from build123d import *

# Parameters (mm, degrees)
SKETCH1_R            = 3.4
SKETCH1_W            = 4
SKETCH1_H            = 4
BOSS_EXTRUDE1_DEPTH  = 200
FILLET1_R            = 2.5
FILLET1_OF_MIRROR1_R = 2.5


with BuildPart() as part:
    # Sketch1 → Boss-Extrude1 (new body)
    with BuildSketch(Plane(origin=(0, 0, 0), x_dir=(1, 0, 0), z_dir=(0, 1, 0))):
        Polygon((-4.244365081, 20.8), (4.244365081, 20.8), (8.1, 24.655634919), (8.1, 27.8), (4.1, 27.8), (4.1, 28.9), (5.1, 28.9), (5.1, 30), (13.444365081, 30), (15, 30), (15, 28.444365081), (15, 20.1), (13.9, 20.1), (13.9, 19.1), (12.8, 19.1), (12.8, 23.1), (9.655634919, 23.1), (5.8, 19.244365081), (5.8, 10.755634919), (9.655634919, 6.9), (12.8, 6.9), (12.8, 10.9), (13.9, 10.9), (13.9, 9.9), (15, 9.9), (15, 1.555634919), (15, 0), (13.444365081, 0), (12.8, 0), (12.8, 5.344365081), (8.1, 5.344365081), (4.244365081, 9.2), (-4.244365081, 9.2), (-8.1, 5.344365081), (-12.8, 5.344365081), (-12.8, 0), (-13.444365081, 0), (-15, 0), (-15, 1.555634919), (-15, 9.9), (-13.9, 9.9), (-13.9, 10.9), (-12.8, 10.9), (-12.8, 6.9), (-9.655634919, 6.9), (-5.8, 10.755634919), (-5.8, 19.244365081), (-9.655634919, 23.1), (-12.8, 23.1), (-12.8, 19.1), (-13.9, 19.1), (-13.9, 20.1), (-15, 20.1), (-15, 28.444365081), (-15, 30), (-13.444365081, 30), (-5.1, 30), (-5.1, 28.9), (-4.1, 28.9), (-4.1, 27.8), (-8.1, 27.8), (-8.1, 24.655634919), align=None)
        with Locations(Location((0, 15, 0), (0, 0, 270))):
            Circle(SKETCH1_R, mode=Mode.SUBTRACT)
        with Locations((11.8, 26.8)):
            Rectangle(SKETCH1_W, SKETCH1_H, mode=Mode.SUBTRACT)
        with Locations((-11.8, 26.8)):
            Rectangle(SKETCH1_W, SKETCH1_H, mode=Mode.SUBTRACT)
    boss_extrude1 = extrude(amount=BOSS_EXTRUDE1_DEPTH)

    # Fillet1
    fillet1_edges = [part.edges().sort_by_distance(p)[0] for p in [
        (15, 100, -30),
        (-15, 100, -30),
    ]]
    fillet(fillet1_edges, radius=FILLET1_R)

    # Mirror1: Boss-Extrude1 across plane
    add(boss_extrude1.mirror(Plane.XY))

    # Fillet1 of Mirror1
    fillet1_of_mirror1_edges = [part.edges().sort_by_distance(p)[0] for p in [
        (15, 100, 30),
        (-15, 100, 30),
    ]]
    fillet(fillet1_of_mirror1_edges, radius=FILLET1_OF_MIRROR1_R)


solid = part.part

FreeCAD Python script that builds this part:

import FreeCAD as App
import Part
import Sketcher

V = App.Vector


def edges_at(feature, points):
    """Names of the edges that pass closest to the given points."""
    edges = feature.Shape.Edges
    near = lambda p: min(range(len(edges)), key=lambda i: edges[i].distToShape(Part.Vertex(*p))[0])
    return sorted({f"Edge{near(p) + 1}" for p in points})


def add_polygon(sketch, points):
    """Adds a closed chain of lines whose ends are joined by coincident constraints."""
    first, n = sketch.GeometryCount, len(points)
    for a, b in zip(points, points[1:] + points[:1]):
        sketch.addGeometry(Part.LineSegment(App.Vector(*a, 0), App.Vector(*b, 0)), False)
    for i in range(n):
        sketch.addConstraint(Sketcher.Constraint("Coincident", first + i, 2, first + (i + 1) % n, 1))

doc = App.newDocument("Part")
body = doc.addObject("PartDesign::Body", "Body")

sketch1 = body.newObject("Sketcher::SketchObject", "Sketch")
sketch1.AttachmentSupport = (doc.getObject("XZ_Plane"), [""])
sketch1.MapMode = "FlatFace"
add_polygon(sketch1, [(4.2, -20.8), (-4.2, -20.8), (-8.1, -24.7), (-8.1, -27.8), (-4.1, -27.8), (-4.1, -28.9), (-5.1, -28.9), (-5.1, -30), (-15, -30), (-15, -20.1), (-13.9, -20.1), (-13.9, -19.1), (-12.8, -19.1), (-12.8, -23.1), (-9.7, -23.1), (-5.8, -19.2), (-5.8, -10.8), (-9.7, -6.9), (-12.8, -6.9), (-12.8, -10.9), (-13.9, -10.9), (-13.9, -9.9), (-15, -9.9), (-15, 0), (-12.8, 0), (-12.8, -5.3), (-8.1, -5.3), (-4.2, -9.2), (4.2, -9.2), (8.1, -5.3), (12.8, -5.3), (12.8, 0), (15, 0), (15, -9.9), (13.9, -9.9), (13.9, -10.9), (12.8, -10.9), (12.8, -6.9), (9.7, -6.9), (5.8, -10.8), (5.8, -19.2), (9.7, -23.1), (12.8, -23.1), (12.8, -19.1), (13.9, -19.1), (13.9, -20.1), (15, -20.1), (15, -30), (5.1, -30), (5.1, -28.9), (4.1, -28.9), (4.1, -27.8), (8.1, -27.8), (8.1, -24.7)])
sketch1.addGeometry(Part.Circle(V(0, -15, 0), V(0, 0, 1), 3.4), False)
add_polygon(sketch1, [(9.8, -24.8), (9.8, -28.8), (13.8, -28.8), (13.8, -24.8)])
add_polygon(sketch1, [(-13.8, -24.8), (-13.8, -28.8), (-9.8, -28.8), (-9.8, -24.8)])
sketch1.addConstraint([
    Sketcher.Constraint("Horizontal", 0),
    Sketcher.Constraint("Vertical", 2),
    Sketcher.Constraint("Horizontal", 3),
    Sketcher.Constraint("Vertical", 4),
    Sketcher.Constraint("Horizontal", 5),
    Sketcher.Constraint("Vertical", 6),
    Sketcher.Constraint("Horizontal", 7),
    Sketcher.Constraint("Vertical", 8),
    Sketcher.Constraint("Horizontal", 9),
    Sketcher.Constraint("Vertical", 10),
    Sketcher.Constraint("Horizontal", 11),
    Sketcher.Constraint("Vertical", 12),
    Sketcher.Constraint("Horizontal", 13),
    Sketcher.Constraint("Vertical", 15),
    Sketcher.Constraint("Horizontal", 17),
    Sketcher.Constraint("Vertical", 18),
    Sketcher.Constraint("Horizontal", 19),
    Sketcher.Constraint("Vertical", 20),
    Sketcher.Constraint("Horizontal", 21),
    Sketcher.Constraint("Vertical", 22),
    Sketcher.Constraint("Horizontal", 23),
    Sketcher.Constraint("Vertical", 24),
    Sketcher.Constraint("Horizontal", 25),
    Sketcher.Constraint("Horizontal", 27),
    Sketcher.Constraint("Horizontal", 29),
    Sketcher.Constraint("Vertical", 30),
    Sketcher.Constraint("Horizontal", 31),
    Sketcher.Constraint("Vertical", 32),
    Sketcher.Constraint("Horizontal", 33),
    Sketcher.Constraint("Vertical", 34),
    Sketcher.Constraint("Horizontal", 35),
    Sketcher.Constraint("Vertical", 36),
    Sketcher.Constraint("Horizontal", 37),
    Sketcher.Constraint("Vertical", 39),
    Sketcher.Constraint("Horizontal", 41),
    Sketcher.Constraint("Vertical", 42),
    Sketcher.Constraint("Horizontal", 43),
    Sketcher.Constraint("Vertical", 44),
    Sketcher.Constraint("Horizontal", 45),
    Sketcher.Constraint("Vertical", 46),
    Sketcher.Constraint("Horizontal", 47),
    Sketcher.Constraint("Vertical", 48),
    Sketcher.Constraint("Horizontal", 49),
    Sketcher.Constraint("Vertical", 50),
    Sketcher.Constraint("Horizontal", 51),
    Sketcher.Constraint("Vertical", 52),
    Sketcher.Constraint("Vertical", 55),
    Sketcher.Constraint("Horizontal", 56),
    Sketcher.Constraint("Vertical", 57),
    Sketcher.Constraint("Horizontal", 58),
    Sketcher.Constraint("Vertical", 59),
    Sketcher.Constraint("Horizontal", 60),
    Sketcher.Constraint("Vertical", 61),
    Sketcher.Constraint("Horizontal", 62),
    Sketcher.Constraint("Symmetric", 23, 2, 30, 2, -1, 1),
    Sketcher.Constraint("Symmetric", 25, 2, 28, 2, -2),
    Sketcher.Constraint("Symmetric", 22, 2, 31, 2, -2),
    Sketcher.Constraint("Symmetric", 20, 2, 33, 2, -2),
    Sketcher.Constraint("Symmetric", 18, 2, 35, 2, -2),
    Sketcher.Constraint("Symmetric", 16, 2, 37, 2, -2),
    Sketcher.Constraint("Symmetric", 15, 2, 38, 2, -2),
    Sketcher.Constraint("Symmetric", 13, 2, 40, 2, -2),
    Sketcher.Constraint("Symmetric", 11, 2, 42, 2, -2),
    Sketcher.Constraint("Symmetric", 9, 2, 44, 2, -2),
    Sketcher.Constraint("Symmetric", 7, 2, 46, 2, -2),
    Sketcher.Constraint("Symmetric", 5, 2, 48, 2, -2),
    Sketcher.Constraint("Symmetric", 3, 2, 50, 2, -2),
    Sketcher.Constraint("Symmetric", 1, 2, 52, 2, -2),
    Sketcher.Constraint("Symmetric", 56, 2, 59, 2, -2),
    Sketcher.Constraint("Symmetric", 58, 2, 61, 2, -2),
    Sketcher.Constraint("PointOnObject", 54, 3, -2),
    Sketcher.Constraint("Parallel", 1, 14),
    Sketcher.Constraint("Perpendicular", 14, 16),
    Sketcher.Constraint("Parallel", 16, 26),
    Sketcher.Constraint("Perpendicular", 26, 28),
    Sketcher.Constraint("Parallel", 28, 38),
    Sketcher.Constraint("Perpendicular", 38, 40),
    Sketcher.Constraint("Parallel", 40, 53),
    Sketcher.Constraint("Vertical", 13, 2, 16, 2),
    Sketcher.Constraint("Vertical", 12, 2, 17, 2),
    Sketcher.Constraint("Vertical", 10, 2, 19, 2),
    Sketcher.Constraint("Vertical", 8, 2, 21, 2),
    Sketcher.Constraint("Vertical", 18, 2, 23, 2),
    Sketcher.Constraint("Vertical", 2, 2, 25, 2),
    Sketcher.Constraint("Vertical", 0, 2, 26, 2),
    Sketcher.Constraint("Equal", 9, 11),
    Sketcher.Constraint("Equal", 51, 56),
    Sketcher.Constraint("Equal", 41, 2),
    Sketcher.Constraint("Equal", 45, 4),
    Sketcher.Constraint("Equal", 4, 6),
    Sketcher.Constraint("Equal", 47, 8),
    Sketcher.Constraint("Equal", 49, 10),
    Sketcher.Constraint("Equal", 62, 12),
    Sketcher.Constraint("Equal", 27, 15),
    Sketcher.Constraint("Equal", 12, 18),
    Sketcher.Constraint("Equal", 10, 20),
    Sketcher.Constraint("Equal", 8, 22),
    Sketcher.Constraint("Equal", 42, 55),
    Sketcher.Constraint("Equal", 1, 14),
    Sketcher.Constraint("Diameter", 54, 6.8),
    Sketcher.Constraint("DistanceX", 3, 1, 3, 2, 4.0),
    Sketcher.Constraint("DistanceX", 5, 2, 5, 1, 1.0),
    Sketcher.Constraint("DistanceX", 7, 2, 7, 1, 9.9),
    Sketcher.Constraint("DistanceX", 9, 1, 9, 2, 1.1),
    Sketcher.Constraint("DistanceY", 54, 3, -1, 1, 15.0),
    Sketcher.Constraint("DistanceY", 6, 2, -1, 1, 30.0),
    Sketcher.Constraint("DistanceY", 0, 2, -1, 1, 20.8),
    Sketcher.Constraint("DistanceY", 26, 2, -1, 1, 9.2),
    Sketcher.Constraint("DistanceX", -1, 1, 55, 2, 9.8),
    Sketcher.Constraint("DistanceY", 55, 2, -1, 1, 28.8),
    Sketcher.Constraint("DistanceX", 0, 2, 0, 1, 8.48873),
])
pad1 = body.newObject("PartDesign::Pad", "Pad")
pad1.Profile = sketch1
pad1.Length = 200
pad1.Reversed = True
doc.recompute()

fillet = body.newObject("PartDesign::Fillet", "Fillet")
fillet.Base = (pad1, edges_at(pad1, [(15, 100, -30), (-15, 100, -30)]))
fillet.Radius = 2.5
doc.recompute()

mirrored = body.newObject("PartDesign::Mirrored", "Mirrored")
mirrored.Originals = [pad1]
mirrored.MirrorPlane = (doc.getObject("XY_Plane"), [""])
body.Tip = mirrored
doc.recompute()

fillet2 = body.newObject("PartDesign::Fillet", "Fillet001")
fillet2.Base = (mirrored, edges_at(mirrored, [(15, 100, 30), (-15, 100, 30)]))
fillet2.Radius = 2.5

doc.recompute()
